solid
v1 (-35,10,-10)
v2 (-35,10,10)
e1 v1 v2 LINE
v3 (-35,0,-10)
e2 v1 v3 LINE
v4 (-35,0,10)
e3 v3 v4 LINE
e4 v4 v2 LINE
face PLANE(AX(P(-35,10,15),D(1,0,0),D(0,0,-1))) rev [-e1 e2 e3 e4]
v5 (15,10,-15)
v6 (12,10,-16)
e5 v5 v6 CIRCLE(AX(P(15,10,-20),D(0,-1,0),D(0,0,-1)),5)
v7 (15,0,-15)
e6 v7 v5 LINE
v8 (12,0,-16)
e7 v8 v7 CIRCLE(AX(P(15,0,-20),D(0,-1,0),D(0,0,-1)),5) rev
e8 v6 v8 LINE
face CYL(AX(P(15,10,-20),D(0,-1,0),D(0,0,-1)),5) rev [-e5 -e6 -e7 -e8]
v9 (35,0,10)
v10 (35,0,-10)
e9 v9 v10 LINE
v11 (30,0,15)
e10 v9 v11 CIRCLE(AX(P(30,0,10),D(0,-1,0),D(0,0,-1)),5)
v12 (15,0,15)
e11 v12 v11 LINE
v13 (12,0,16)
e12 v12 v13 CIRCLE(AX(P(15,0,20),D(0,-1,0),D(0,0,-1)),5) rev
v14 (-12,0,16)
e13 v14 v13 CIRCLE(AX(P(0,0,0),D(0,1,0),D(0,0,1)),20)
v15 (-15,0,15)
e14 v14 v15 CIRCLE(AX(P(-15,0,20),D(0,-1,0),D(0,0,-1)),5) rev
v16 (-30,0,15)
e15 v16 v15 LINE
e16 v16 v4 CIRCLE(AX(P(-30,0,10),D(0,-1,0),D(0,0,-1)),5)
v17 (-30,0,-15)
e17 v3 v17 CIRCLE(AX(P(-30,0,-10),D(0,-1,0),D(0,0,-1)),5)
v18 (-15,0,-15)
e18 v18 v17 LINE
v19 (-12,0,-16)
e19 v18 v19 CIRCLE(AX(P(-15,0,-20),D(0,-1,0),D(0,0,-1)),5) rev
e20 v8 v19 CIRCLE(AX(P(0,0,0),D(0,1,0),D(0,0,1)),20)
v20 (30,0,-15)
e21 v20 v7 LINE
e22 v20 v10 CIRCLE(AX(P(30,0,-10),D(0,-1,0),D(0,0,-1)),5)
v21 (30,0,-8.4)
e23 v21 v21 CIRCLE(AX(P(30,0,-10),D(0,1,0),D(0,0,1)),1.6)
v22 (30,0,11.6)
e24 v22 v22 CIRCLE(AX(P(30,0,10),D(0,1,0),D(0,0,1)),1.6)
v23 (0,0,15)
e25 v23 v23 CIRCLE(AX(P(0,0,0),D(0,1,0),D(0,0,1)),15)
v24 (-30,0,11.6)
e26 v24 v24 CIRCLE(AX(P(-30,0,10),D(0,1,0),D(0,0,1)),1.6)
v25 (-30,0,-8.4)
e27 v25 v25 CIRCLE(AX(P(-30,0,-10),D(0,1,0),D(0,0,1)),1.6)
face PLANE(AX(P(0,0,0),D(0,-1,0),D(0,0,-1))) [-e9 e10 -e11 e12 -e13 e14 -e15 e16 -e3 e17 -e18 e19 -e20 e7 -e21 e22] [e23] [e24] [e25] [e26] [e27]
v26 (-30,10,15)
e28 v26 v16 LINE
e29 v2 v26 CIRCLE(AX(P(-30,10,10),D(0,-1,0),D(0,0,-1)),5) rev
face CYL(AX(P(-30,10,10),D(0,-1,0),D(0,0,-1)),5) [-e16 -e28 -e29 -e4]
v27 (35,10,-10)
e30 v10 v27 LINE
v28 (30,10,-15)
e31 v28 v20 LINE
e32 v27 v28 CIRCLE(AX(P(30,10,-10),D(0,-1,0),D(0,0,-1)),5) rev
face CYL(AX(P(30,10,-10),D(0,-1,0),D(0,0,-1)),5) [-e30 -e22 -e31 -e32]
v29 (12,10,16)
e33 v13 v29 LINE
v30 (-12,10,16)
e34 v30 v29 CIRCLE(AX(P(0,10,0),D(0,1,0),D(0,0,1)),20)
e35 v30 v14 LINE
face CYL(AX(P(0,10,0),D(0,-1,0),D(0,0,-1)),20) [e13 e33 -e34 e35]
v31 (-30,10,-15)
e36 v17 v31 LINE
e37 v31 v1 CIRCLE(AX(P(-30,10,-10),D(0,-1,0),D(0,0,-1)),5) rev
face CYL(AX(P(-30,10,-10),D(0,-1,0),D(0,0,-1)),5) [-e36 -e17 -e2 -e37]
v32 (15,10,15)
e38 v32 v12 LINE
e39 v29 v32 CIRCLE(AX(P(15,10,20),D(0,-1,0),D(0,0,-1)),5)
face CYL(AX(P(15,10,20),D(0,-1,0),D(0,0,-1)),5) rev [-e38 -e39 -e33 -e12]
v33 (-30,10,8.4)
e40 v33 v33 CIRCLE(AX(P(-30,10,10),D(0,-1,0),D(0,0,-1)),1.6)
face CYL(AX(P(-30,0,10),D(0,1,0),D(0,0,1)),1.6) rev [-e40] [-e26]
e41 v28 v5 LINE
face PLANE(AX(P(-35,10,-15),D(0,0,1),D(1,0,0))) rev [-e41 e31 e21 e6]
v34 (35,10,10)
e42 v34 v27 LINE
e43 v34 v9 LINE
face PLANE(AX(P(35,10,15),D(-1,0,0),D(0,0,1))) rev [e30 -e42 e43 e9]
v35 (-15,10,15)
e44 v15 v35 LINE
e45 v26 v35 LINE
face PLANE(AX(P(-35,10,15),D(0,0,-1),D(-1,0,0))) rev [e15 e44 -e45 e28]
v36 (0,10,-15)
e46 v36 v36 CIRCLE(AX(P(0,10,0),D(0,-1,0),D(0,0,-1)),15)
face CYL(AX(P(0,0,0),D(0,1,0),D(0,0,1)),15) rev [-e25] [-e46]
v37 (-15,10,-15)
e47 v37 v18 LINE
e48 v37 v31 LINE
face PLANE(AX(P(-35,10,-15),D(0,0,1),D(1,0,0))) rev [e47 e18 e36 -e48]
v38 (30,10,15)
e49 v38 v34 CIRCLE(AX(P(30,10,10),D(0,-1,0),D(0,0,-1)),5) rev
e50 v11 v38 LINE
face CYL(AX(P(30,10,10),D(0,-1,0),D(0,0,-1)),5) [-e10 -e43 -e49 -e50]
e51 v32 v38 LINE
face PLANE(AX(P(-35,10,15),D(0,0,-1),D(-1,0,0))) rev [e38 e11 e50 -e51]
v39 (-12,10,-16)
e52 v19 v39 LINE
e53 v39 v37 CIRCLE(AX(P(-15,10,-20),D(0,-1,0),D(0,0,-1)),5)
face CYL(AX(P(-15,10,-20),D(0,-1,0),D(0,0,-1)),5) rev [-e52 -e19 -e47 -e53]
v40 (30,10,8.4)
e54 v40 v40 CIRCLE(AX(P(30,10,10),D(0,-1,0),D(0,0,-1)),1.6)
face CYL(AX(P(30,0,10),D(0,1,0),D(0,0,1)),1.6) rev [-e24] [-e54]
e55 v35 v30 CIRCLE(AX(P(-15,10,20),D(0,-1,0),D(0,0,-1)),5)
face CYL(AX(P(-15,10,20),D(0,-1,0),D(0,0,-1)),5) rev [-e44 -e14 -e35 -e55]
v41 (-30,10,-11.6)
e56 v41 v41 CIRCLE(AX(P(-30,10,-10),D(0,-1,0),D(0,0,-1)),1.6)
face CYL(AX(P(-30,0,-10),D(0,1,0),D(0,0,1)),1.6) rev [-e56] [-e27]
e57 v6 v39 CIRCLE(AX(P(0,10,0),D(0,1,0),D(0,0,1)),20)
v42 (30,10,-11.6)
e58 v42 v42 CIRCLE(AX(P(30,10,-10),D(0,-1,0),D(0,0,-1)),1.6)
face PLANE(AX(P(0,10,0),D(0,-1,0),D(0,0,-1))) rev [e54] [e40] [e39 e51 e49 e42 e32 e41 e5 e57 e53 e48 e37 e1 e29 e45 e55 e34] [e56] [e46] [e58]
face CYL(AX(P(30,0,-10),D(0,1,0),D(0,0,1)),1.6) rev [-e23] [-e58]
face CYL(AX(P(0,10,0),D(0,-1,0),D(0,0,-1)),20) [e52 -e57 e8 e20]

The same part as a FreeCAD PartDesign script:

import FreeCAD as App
import Part
import Sketcher

V = App.Vector


def edges_at(feature, points):
    """Names of the edges that pass closest to the given points."""
    edges = feature.Shape.Edges
    near = lambda p: min(range(len(edges)), key=lambda i: edges[i].distToShape(Part.Vertex(*p))[0])
    return sorted({f"Edge{near(p) + 1}" for p in points})

doc = App.newDocument("Part")
params = doc.addObject("Spreadsheet::Sheet", "Params")
for row, (alias, value) in enumerate([
    ("sketch1_width", "70 mm"),
    ("sketch1_height", "30 mm"),
    ("pad1_length", "10 mm"),
    ("sketch2_diameter", "40 mm"),
    ("pad2_length", "10 mm"),
    ("sketch3_diameter", "30 mm"),
    ("sketch4_diameter", "3.2 mm"),
    ("fillet_radius", "5 mm"),
], start=1):
    params.set(f"A{row}", alias)
    params.set(f"B{row}", "=" + value)
    params.setAlias(f"B{row}", alias)

body = doc.addObject("PartDesign::Body", "Body")

sketch1 = doc.addObject("Sketcher::SketchObject", "Sketch")
body.addObject(sketch1)
sketch1.AttachmentSupport = (doc.XZ_Plane, [""])
sketch1.MapMode = "FlatFace"
sketch1.addGeometry(Part.LineSegment(V(-35, -15, 0), V(-35, 15, 0)), False)
sketch1.addGeometry(Part.LineSegment(V(-35, 15, 0), V(35, 15, 0)), False)
sketch1.addGeometry(Part.LineSegment(V(35, 15, 0), V(35, -15, 0)), False)
sketch1.addGeometry(Part.LineSegment(V(35, -15, 0), V(-35, -15, 0)), False)
sketch1.addConstraint(Sketcher.Constraint("Coincident", 0, 2, 1, 1))
sketch1.addConstraint(Sketcher.Constraint("Coincident", 1, 2, 2, 1))
sketch1.addConstraint(Sketcher.Constraint("Coincident", 2, 2, 3, 1))
sketch1.addConstraint(Sketcher.Constraint("Coincident", 3, 2, 0, 1))
sketch1.addConstraint(Sketcher.Constraint("Vertical", 0))
sketch1.addConstraint(Sketcher.Constraint("Horizontal", 1))
sketch1.addConstraint(Sketcher.Constraint("Vertical", 2))
sketch1.addConstraint(Sketcher.Constraint("Horizontal", 3))
sketch1.addConstraint(Sketcher.Constraint("Symmetric", 0, 2, 2, 2, -1, 1))
sketch1.addConstraint(Sketcher.Constraint("DistanceX", 1, 1, 1, 2, 70.0))
sketch1.addConstraint(Sketcher.Constraint("DistanceY", 0, 1, 0, 2, 30.0))
sketch1.setExpression("Constraints[9]", "Params.sketch1_width")
sketch1.setExpression("Constraints[10]", "Params.sketch1_height")
pad1 = doc.addObject("PartDesign::Pad", "Pad")
body.addObject(pad1)
pad1.Profile = sketch1
pad1.setExpression("Length", "Params.pad1_length")
pad1.Reversed = True

sketch2 = doc.addObject("Sketcher::SketchObject", "Sketch001")
body.addObject(sketch2)
sketch2.AttachmentSupport = (doc.XZ_Plane, [""])
sketch2.MapMode = "FlatFace"
sketch2.addGeometry(Part.Circle(V(0, 0, 0), V(0, 0, 1), 20), False)
sketch2.addConstraint(Sketcher.Constraint("Coincident", 0, 3, -1, 1))
sketch2.addConstraint(Sketcher.Constraint("Diameter", 0, 40.0))
sketch2.setExpression("Constraints[1]", "Params.sketch2_diameter")
pad2 = doc.addObject("PartDesign::Pad", "Pad001")
body.addObject(pad2)
pad2.Profile = sketch2
pad2.setExpression("Length", "Params.pad2_length")
pad2.Reversed = True

sketch3 = doc.addObject("Sketcher::SketchObject", "Sketch002")
body.addObject(sketch3)
sketch3.AttachmentSupport = (doc.XZ_Plane, [""])
sketch3.MapMode = "FlatFace"
sketch3.AttachmentOffset = App.Placement(V(0, 0, -10), App.Rotation())
sketch3.addGeometry(Part.Circle(V(0, 0, 0), V(0, 0, 1), 15), False)
sketch3.addConstraint(Sketcher.Constraint("Coincident", 0, 3, -1, 1))
sketch3.addConstraint(Sketcher.Constraint("Diameter", 0, 30.0))
sketch3.setExpression("Constraints[1]", "Params.sketch3_diameter")
pocket1 = doc.addObject("PartDesign::Pocket", "Pocket")
body.addObject(pocket1)
pocket1.Profile = sketch3
pocket1.Type = "ThroughAll"
pocket1.Midplane = True

sketch4 = doc.addObject("Sketcher::SketchObject", "Sketch003")
body.addObject(sketch4)
sketch4.AttachmentSupport = (doc.XZ_Plane, [""])
sketch4.MapMode = "FlatFace"
sketch4.AttachmentOffset = App.Placement(V(0, 0, -10), App.Rotation())
sketch4.addGeometry(Part.Circle(V(-30, -10, 0), V(0, 0, 1), 1.6), False)
sketch4.addGeometry(Part.Circle(V(30, 10, 0), V(0, 0, 1), 1.6), False)
sketch4.addGeometry(Part.Circle(V(30, -10, 0), V(0, 0, 1), 1.6), False)
sketch4.addGeometry(Part.Circle(V(-30, 10, 0), V(0, 0, 1), 1.6), False)
sketch4.addConstraint(Sketcher.Constraint("Equal", 0, 1))
sketch4.addConstraint(Sketcher.Constraint("Equal", 1, 2))
sketch4.addConstraint(Sketcher.Constraint("Equal", 2, 3))
sketch4.addConstraint(Sketcher.Constraint("Symmetric", 0, 3, 1, 3, -1, 1))
sketch4.addConstraint(Sketcher.Constraint("Symmetric", 2, 3, 3, 3, -1, 1))
sketch4.addConstraint(Sketcher.Constraint("Symmetric", 0, 3, 2, 3, -2))
sketch4.addConstraint(Sketcher.Constraint("Diameter", 0, 3.2))
sketch4.addConstraint(Sketcher.Constraint("DistanceX", 0, 3, -1, 1, 30.0))
sketch4.addConstraint(Sketcher.Constraint("DistanceY", 0, 3, -1, 1, 10.0))
sketch4.setExpression("Constraints[6]", "Params.sketch4_diameter")
pocket2 = doc.addObject("PartDesign::Pocket", "Pocket001")
body.addObject(pocket2)
pocket2.Profile = sketch4
pocket2.Type = "ThroughAll"
pocket2.Midplane = True
doc.recompute()

fillet = doc.addObject("PartDesign::Fillet", "Fillet")
body.addObject(fillet)
fillet.Base = (pocket2, edges_at(pocket2, [
    (-13.229, 5, -15),
    (13.229, 5, -15),
    (13.229, 5, 15),
    (-13.229, 5, 15),
    (35, 5, 15),
    (-35, 5, 15),
    (-35, 5, -15),
    (35, 5, -15),
]))
fillet.setExpression("Radius", "Params.fillet_radius")

doc.recompute()
